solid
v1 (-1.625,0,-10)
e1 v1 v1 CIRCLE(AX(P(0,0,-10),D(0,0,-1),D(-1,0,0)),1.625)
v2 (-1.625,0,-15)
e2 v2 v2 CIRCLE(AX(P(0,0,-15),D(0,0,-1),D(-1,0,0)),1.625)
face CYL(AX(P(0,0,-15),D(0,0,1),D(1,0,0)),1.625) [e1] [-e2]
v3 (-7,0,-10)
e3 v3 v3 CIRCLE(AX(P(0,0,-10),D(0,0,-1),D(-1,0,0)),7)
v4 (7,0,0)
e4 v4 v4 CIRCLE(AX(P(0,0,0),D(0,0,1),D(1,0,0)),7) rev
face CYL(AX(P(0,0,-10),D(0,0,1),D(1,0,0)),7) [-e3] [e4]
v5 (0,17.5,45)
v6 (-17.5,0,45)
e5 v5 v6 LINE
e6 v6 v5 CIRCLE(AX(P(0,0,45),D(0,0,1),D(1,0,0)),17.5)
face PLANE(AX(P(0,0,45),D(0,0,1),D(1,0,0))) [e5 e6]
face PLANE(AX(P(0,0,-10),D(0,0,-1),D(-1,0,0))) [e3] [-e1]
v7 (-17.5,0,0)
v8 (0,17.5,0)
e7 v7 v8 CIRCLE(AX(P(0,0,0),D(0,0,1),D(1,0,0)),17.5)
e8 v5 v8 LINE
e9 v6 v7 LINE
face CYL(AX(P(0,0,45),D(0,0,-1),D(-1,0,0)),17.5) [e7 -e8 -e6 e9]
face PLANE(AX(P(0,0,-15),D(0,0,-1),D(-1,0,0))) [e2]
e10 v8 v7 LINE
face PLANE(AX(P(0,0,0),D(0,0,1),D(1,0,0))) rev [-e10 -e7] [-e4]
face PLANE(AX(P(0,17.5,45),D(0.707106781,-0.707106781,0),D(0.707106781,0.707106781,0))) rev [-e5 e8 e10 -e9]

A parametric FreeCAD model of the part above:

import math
import FreeCAD as App
import Part
import Sketcher
Q = App.Units.Quantity

doc = App.newDocument("Part")
body = doc.addObject("PartDesign::Body", "Body")

# Sketch on XY plane
sketch1 = doc.addObject("Sketcher::SketchObject", "Sketch")
body.addObject(sketch1)
sketch1.AttachmentSupport = (doc.XY_Plane, [""])
sketch1.MapMode = "FlatFace"
sketch1.addGeometry(Part.LineSegment(App.Vector(0, 18, 0), App.Vector(-18, 0, 0)), False)
sketch1.addGeometry(Part.ArcOfCircle(Part.Circle(App.Vector(0, 0, 0), App.Vector(0, 0, 1), 18), math.radians(180), math.radians(450)), False)
sketch1.addConstraint(Sketcher.Constraint("Coincident", 0, 1, 1, 2))
sketch1.addConstraint(Sketcher.Constraint("Coincident", 1, 1, 0, 2))
sketch1.addConstraint(Sketcher.Constraint("Coincident", 1, 3, -1, 1))
sketch1.addConstraint(Sketcher.Constraint("PointOnObject", 0, 1, -2))
sketch1.addConstraint(Sketcher.Constraint("PointOnObject", 1, 1, -1))
sketch1.addConstraint(Sketcher.Constraint("Radius", 1, Q("17.5 mm")))
pad1 = doc.addObject("PartDesign::Pad", "Pad")
body.addObject(pad1)
pad1.Profile = sketch1
pad1.Length = 45

# Sketch on XY plane
sketch2 = doc.addObject("Sketcher::SketchObject", "Sketch001")
body.addObject(sketch2)
sketch2.AttachmentSupport = (doc.XY_Plane, [""])
sketch2.MapMode = "FlatFace"
sketch2.addGeometry(Part.Circle(App.Vector(0, 0, 0), App.Vector(0, 0, 1), 1.6), False)
sketch2.addConstraint(Sketcher.Constraint("Coincident", 0, 3, -1, 1))
sketch2.addConstraint(Sketcher.Constraint("Diameter", 0, Q("3.25 mm")))
pad2 = doc.addObject("PartDesign::Pad", "Pad001")
body.addObject(pad2)
pad2.Profile = sketch2
pad2.Length = 15
pad2.Reversed = True

# Sketch on XY plane
sketch3 = doc.addObject("Sketcher::SketchObject", "Sketch002")
body.addObject(sketch3)
sketch3.AttachmentSupport = (doc.XY_Plane, [""])
sketch3.MapMode = "FlatFace"
sketch3.addGeometry(Part.Circle(App.Vector(0, 0, 0), App.Vector(0, 0, 1), 7), False)
sketch3.addConstraint(Sketcher.Constraint("Coincident", 0, 3, -1, 1))
sketch3.addConstraint(Sketcher.Constraint("Diameter", 0, Q("14 mm")))
pad3 = doc.addObject("PartDesign::Pad", "Pad002")
body.addObject(pad3)
pad3.Profile = sketch3
pad3.Length = 10
pad3.Reversed = True

doc.recompute()
